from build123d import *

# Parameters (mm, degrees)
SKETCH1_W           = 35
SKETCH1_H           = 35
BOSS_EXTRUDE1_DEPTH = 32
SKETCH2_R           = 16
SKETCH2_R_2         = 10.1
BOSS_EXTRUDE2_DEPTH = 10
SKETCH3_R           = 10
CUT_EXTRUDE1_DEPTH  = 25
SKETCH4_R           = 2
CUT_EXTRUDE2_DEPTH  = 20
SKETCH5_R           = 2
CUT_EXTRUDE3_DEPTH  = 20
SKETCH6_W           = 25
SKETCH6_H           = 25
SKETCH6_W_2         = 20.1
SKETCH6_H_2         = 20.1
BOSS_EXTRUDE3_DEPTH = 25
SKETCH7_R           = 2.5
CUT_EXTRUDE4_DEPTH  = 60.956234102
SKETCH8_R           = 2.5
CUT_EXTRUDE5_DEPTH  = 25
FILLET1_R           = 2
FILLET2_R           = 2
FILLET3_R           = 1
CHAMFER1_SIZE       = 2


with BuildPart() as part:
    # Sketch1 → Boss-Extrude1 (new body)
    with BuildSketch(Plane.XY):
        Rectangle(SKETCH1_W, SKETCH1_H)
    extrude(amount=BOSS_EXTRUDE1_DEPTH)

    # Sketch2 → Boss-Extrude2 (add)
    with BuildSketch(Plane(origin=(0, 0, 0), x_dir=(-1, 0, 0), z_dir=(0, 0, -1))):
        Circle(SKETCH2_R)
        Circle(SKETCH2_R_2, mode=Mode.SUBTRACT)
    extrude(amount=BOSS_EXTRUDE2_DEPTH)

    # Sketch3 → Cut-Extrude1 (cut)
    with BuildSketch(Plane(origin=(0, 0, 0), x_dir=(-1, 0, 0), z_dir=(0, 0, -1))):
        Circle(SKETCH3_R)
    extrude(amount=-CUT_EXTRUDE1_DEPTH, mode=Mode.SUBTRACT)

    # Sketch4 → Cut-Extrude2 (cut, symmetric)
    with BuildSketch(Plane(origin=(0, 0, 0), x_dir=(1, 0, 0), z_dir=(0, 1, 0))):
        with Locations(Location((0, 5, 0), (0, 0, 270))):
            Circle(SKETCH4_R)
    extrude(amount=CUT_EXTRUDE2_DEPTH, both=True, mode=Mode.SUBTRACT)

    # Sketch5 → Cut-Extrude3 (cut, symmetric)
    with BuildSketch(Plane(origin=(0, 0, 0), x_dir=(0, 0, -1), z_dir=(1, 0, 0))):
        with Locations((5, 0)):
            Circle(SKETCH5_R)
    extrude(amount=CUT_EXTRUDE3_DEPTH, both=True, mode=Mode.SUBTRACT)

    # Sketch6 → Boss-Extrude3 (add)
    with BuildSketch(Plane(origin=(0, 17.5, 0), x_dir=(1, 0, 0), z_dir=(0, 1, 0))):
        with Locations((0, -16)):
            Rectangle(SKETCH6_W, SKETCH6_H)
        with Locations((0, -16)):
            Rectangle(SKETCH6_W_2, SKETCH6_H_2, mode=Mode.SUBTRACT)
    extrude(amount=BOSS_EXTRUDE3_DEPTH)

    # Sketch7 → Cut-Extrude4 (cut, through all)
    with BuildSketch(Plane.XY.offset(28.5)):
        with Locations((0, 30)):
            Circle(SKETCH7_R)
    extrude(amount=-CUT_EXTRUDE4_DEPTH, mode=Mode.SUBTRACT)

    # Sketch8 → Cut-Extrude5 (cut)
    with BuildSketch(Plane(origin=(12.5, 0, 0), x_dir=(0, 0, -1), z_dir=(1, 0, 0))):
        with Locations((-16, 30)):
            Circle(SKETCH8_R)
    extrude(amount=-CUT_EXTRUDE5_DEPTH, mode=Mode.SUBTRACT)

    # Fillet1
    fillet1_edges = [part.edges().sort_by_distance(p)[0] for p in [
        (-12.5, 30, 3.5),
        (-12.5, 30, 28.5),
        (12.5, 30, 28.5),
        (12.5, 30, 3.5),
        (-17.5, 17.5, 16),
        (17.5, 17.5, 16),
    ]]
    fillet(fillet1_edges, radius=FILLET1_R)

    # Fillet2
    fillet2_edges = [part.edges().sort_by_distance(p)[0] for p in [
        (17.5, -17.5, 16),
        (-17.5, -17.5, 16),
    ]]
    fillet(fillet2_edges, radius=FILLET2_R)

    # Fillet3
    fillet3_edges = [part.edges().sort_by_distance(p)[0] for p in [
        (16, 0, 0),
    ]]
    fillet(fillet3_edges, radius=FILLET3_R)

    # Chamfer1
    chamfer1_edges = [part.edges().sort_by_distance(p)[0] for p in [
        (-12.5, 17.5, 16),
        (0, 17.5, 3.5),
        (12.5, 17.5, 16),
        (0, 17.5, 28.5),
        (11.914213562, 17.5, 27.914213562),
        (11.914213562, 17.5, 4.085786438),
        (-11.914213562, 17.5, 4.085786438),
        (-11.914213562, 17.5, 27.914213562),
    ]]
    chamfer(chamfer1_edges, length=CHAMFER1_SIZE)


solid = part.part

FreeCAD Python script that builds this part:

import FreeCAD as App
import Part
import Sketcher


def edges_at(feature, points):
    """Names of the edges that pass closest to the given points."""
    edges = feature.Shape.Edges
    near = lambda p: min(range(len(edges)), key=lambda i: edges[i].distToShape(Part.Vertex(*p))[0])
    return sorted({f"Edge{near(p) + 1}" for p in points})


def add_polygon(sketch, points):
    """Adds a closed chain of lines whose ends are joined by coincident constraints."""
    first, n = sketch.GeometryCount, len(points)
    for a, b in zip(points, points[1:] + points[:1]):
        sketch.addGeometry(Part.LineSegment(App.Vector(*a, 0), App.Vector(*b, 0)), False)
    for i in range(n):
        sketch.addConstraint(Sketcher.Constraint("Coincident", first + i, 2, first + (i + 1) % n, 1))

doc = App.newDocument("Part")
body = doc.addObject("PartDesign::Body", "Body")

# Sketch on XY plane
sketch1 = body.newObject("Sketcher::SketchObject", "Sketch")
sketch1.AttachmentSupport = (doc.getObject("XY_Plane"), [""])
sketch1.MapMode = "FlatFace"
add_polygon(sketch1, [(-17.5, 17.5), (-17.5, -17.5), (17.5, -17.5), (17.5, 17.5)])  # lines 0-3
sketch1.addConstraint(Sketcher.Constraint("Vertical", 0))
sketch1.addConstraint(Sketcher.Constraint("Horizontal", 1))
sketch1.addConstraint(Sketcher.Constraint("Vertical", 2))
sketch1.addConstraint(Sketcher.Constraint("Horizontal", 3))
sketch1.addConstraint(Sketcher.Constraint("Symmetric", 0, 2, 2, 2, -1, 1))
sketch1.addConstraint(Sketcher.Constraint("Equal", 3, 0))
sketch1.addConstraint(Sketcher.Constraint("DistanceX", 1, 1, 1, 2, 35.0))
pad1 = body.newObject("PartDesign::Pad", "Pad")
pad1.Profile = sketch1
pad1.Length = 32

# Sketch on XY plane
sketch2 = body.newObject("Sketcher::SketchObject", "Sketch001")
sketch2.AttachmentSupport = (doc.getObject("XY_Plane"), [""])
sketch2.MapMode = "FlatFace"
sketch2.addGeometry(Part.Circle(App.Vector(0, 0, 0), App.Vector(0, 0, 1), 16), False)
sketch2.addGeometry(Part.Circle(App.Vector(0, 0, 0), App.Vector(0, 0, 1), 10.1), False)
sketch2.addConstraint(Sketcher.Constraint("Coincident", 0, 3, -1, 1))
sketch2.addConstraint(Sketcher.Constraint("Coincident", 1, 3, -1, 1))
sketch2.addConstraint(Sketcher.Constraint("Diameter", 0, 32.0))
sketch2.addConstraint(Sketcher.Constraint("Diameter", 1, 20.2))
pad2 = body.newObject("PartDesign::Pad", "Pad001")
pad2.Profile = sketch2
pad2.Length = 10
pad2.Reversed = True

# Sketch on XY plane
sketch3 = body.newObject("Sketcher::SketchObject", "Sketch002")
sketch3.AttachmentSupport = (doc.getObject("XY_Plane"), [""])
sketch3.MapMode = "FlatFace"
sketch3.addGeometry(Part.Circle(App.Vector(0, 0, 0), App.Vector(0, 0, 1), 10), False)
sketch3.addConstraint(Sketcher.Constraint("Coincident", 0, 3, -1, 1))
sketch3.addConstraint(Sketcher.Constraint("Diameter", 0, 20.0))
pocket1 = body.newObject("PartDesign::Pocket", "Pocket")
pocket1.Profile = sketch3
pocket1.Length = 25
pocket1.Reversed = True

# Sketch on XZ plane
sketch4 = body.newObject("Sketcher::SketchObject", "Sketch003")
sketch4.AttachmentSupport = (doc.getObject("XZ_Plane"), [""])
sketch4.MapMode = "FlatFace"
sketch4.addGeometry(Part.Circle(App.Vector(0, -5, 0), App.Vector(0, 0, 1), 2), False)
sketch4.addConstraint(Sketcher.Constraint("PointOnObject", 0, 3, -2))
sketch4.addConstraint(Sketcher.Constraint("Diameter", 0, 4.0))
sketch4.addConstraint(Sketcher.Constraint("DistanceY", 0, 3, -1, 1, 5.0))
pocket2 = body.newObject("PartDesign::Pocket", "Pocket001")
pocket2.Profile = sketch4
pocket2.Length = 40
pocket2.Midplane = True

# Sketch on YZ plane
sketch5 = body.newObject("Sketcher::SketchObject", "Sketch004")
sketch5.AttachmentSupport = (doc.getObject("YZ_Plane"), [""])
sketch5.MapMode = "FlatFace"
sketch5.addGeometry(Part.Circle(App.Vector(0, -5, 0), App.Vector(0, 0, 1), 2), False)
sketch5.addConstraint(Sketcher.Constraint("PointOnObject", 0, 3, -2))
sketch5.addConstraint(Sketcher.Constraint("Diameter", 0, 4.0))
sketch5.addConstraint(Sketcher.Constraint("DistanceY", 0, 3, -1, 1, 5.0))
pocket3 = body.newObject("PartDesign::Pocket", "Pocket002")
pocket3.Profile = sketch5
pocket3.Length = 40
pocket3.Midplane = True

# Sketch on XZ plane
sketch6 = body.newObject("Sketcher::SketchObject", "Sketch005")
sketch6.AttachmentSupport = (doc.getObject("XZ_Plane"), [""])
sketch6.MapMode = "FlatFace"
sketch6.AttachmentOffset = App.Placement(App.Vector(0, 0, -17.5), App.Rotation())
add_polygon(sketch6, [(-12.5, 3.5), (-12.5, 28.5), (12.5, 28.5), (12.5, 3.5)])  # lines 0-3
add_polygon(sketch6, [(10.05, 26.05), (-10.05, 26.05), (-10.05, 5.95), (10.05, 5.95)])  # lines 4-7
sketch6.addConstraint(Sketcher.Constraint("Vertical", 0))
sketch6.addConstraint(Sketcher.Constraint("Horizontal", 1))
sketch6.addConstraint(Sketcher.Constraint("Vertical", 2))
sketch6.addConstraint(Sketcher.Constraint("Horizontal", 3))
sketch6.addConstraint(Sketcher.Constraint("Horizontal", 4))
sketch6.addConstraint(Sketcher.Constraint("Vertical", 5))
sketch6.addConstraint(Sketcher.Constraint("Horizontal", 6))
sketch6.addConstraint(Sketcher.Constraint("Vertical", 7))
sketch6.addConstraint(Sketcher.Constraint("Equal", 3, 0))
sketch6.addConstraint(Sketcher.Constraint("Equal", 6, 5))
sketch6.addConstraint(Sketcher.Constraint("DistanceX", 1, 1, 1, 2, 25.0))
sketch6.addConstraint(Sketcher.Constraint("DistanceX", 4, 2, 4, 1, 20.1))
sketch6.addConstraint(Sketcher.Constraint("DistanceX", 0, 2, -1, 1, 12.5))
sketch6.addConstraint(Sketcher.Constraint("DistanceY", -1, 1, 0, 2, 28.5))
sketch6.addConstraint(Sketcher.Constraint("DistanceX", 4, 2, -1, 1, 10.05))
sketch6.addConstraint(Sketcher.Constraint("DistanceY", -1, 1, 4, 2, 26.05))
pad3 = body.newObject("PartDesign::Pad", "Pad002")
pad3.Profile = sketch6
pad3.Length = 25
pad3.Reversed = True

# Sketch on XY plane
sketch7 = body.newObject("Sketcher::SketchObject", "Sketch006")
sketch7.AttachmentSupport = (doc.getObject("XY_Plane"), [""])
sketch7.MapMode = "FlatFace"
sketch7.AttachmentOffset = App.Placement(App.Vector(0, 0, 28.5), App.Rotation())
sketch7.addGeometry(Part.Circle(App.Vector(0, 30, 0), App.Vector(0, 0, 1), 2.5), False)
sketch7.addConstraint(Sketcher.Constraint("PointOnObject", 0, 3, -2))
sketch7.addConstraint(Sketcher.Constraint("Diameter", 0, 5.0))
sketch7.addConstraint(Sketcher.Constraint("DistanceY", -1, 1, 0, 3, 30.0))
pocket4 = body.newObject("PartDesign::Pocket", "Pocket003")
pocket4.Profile = sketch7
pocket4.Type = "ThroughAll"

# Sketch on YZ plane
sketch8 = body.newObject("Sketcher::SketchObject", "Sketch007")
sketch8.AttachmentSupport = (doc.getObject("YZ_Plane"), [""])
sketch8.MapMode = "FlatFace"
sketch8.AttachmentOffset = App.Placement(App.Vector(0, 0, 12.5), App.Rotation())
sketch8.addGeometry(Part.Circle(App.Vector(30, 16, 0), App.Vector(0, 0, 1), 2.5), False)
sketch8.addConstraint(Sketcher.Constraint("Diameter", 0, 5.0))
sketch8.addConstraint(Sketcher.Constraint("DistanceX", -1, 1, 0, 3, 30.0))
sketch8.addConstraint(Sketcher.Constraint("DistanceY", -1, 1, 0, 3, 16.0))
pocket5 = body.newObject("PartDesign::Pocket", "Pocket004")
pocket5.Profile = sketch8
pocket5.Length = 25
doc.recompute()

fillet = body.newObject("PartDesign::Fillet", "Fillet")
fillet.Base = (pocket5, edges_at(pocket5, [
    (-12.5, 30, 3.5),
    (-12.5, 30, 28.5),
    (12.5, 30, 28.5),
    (12.5, 30, 3.5),
    (-17.5, 17.5, 16),
    (17.5, 17.5, 16),
]))
fillet.Radius = 2
doc.recompute()

fillet2 = body.newObject("PartDesign::Fillet", "Fillet001")
fillet2.Base = (fillet, edges_at(fillet, [(17.5, -17.5, 16), (-17.5, -17.5, 16)]))
fillet2.Radius = 2
doc.recompute()

fillet3 = body.newObject("PartDesign::Fillet", "Fillet002")
fillet3.Base = (fillet2, edges_at(fillet2, [(16, 0, 0)]))
fillet3.Radius = 1
doc.recompute()

chamfer = body.newObject("PartDesign::Chamfer", "Chamfer")
chamfer.Base = (fillet3, edges_at(fillet3, [
    (-12.5, 17.5, 16),
    (0, 17.5, 3.5),
    (12.5, 17.5, 16),
    (0, 17.5, 28.5),
    (11.914, 17.5, 27.914),
    (11.914, 17.5, 4.086),
    (-11.914, 17.5, 4.086),
    (-11.914, 17.5, 27.914),
]))
chamfer.Size = 2

doc.recompute()
